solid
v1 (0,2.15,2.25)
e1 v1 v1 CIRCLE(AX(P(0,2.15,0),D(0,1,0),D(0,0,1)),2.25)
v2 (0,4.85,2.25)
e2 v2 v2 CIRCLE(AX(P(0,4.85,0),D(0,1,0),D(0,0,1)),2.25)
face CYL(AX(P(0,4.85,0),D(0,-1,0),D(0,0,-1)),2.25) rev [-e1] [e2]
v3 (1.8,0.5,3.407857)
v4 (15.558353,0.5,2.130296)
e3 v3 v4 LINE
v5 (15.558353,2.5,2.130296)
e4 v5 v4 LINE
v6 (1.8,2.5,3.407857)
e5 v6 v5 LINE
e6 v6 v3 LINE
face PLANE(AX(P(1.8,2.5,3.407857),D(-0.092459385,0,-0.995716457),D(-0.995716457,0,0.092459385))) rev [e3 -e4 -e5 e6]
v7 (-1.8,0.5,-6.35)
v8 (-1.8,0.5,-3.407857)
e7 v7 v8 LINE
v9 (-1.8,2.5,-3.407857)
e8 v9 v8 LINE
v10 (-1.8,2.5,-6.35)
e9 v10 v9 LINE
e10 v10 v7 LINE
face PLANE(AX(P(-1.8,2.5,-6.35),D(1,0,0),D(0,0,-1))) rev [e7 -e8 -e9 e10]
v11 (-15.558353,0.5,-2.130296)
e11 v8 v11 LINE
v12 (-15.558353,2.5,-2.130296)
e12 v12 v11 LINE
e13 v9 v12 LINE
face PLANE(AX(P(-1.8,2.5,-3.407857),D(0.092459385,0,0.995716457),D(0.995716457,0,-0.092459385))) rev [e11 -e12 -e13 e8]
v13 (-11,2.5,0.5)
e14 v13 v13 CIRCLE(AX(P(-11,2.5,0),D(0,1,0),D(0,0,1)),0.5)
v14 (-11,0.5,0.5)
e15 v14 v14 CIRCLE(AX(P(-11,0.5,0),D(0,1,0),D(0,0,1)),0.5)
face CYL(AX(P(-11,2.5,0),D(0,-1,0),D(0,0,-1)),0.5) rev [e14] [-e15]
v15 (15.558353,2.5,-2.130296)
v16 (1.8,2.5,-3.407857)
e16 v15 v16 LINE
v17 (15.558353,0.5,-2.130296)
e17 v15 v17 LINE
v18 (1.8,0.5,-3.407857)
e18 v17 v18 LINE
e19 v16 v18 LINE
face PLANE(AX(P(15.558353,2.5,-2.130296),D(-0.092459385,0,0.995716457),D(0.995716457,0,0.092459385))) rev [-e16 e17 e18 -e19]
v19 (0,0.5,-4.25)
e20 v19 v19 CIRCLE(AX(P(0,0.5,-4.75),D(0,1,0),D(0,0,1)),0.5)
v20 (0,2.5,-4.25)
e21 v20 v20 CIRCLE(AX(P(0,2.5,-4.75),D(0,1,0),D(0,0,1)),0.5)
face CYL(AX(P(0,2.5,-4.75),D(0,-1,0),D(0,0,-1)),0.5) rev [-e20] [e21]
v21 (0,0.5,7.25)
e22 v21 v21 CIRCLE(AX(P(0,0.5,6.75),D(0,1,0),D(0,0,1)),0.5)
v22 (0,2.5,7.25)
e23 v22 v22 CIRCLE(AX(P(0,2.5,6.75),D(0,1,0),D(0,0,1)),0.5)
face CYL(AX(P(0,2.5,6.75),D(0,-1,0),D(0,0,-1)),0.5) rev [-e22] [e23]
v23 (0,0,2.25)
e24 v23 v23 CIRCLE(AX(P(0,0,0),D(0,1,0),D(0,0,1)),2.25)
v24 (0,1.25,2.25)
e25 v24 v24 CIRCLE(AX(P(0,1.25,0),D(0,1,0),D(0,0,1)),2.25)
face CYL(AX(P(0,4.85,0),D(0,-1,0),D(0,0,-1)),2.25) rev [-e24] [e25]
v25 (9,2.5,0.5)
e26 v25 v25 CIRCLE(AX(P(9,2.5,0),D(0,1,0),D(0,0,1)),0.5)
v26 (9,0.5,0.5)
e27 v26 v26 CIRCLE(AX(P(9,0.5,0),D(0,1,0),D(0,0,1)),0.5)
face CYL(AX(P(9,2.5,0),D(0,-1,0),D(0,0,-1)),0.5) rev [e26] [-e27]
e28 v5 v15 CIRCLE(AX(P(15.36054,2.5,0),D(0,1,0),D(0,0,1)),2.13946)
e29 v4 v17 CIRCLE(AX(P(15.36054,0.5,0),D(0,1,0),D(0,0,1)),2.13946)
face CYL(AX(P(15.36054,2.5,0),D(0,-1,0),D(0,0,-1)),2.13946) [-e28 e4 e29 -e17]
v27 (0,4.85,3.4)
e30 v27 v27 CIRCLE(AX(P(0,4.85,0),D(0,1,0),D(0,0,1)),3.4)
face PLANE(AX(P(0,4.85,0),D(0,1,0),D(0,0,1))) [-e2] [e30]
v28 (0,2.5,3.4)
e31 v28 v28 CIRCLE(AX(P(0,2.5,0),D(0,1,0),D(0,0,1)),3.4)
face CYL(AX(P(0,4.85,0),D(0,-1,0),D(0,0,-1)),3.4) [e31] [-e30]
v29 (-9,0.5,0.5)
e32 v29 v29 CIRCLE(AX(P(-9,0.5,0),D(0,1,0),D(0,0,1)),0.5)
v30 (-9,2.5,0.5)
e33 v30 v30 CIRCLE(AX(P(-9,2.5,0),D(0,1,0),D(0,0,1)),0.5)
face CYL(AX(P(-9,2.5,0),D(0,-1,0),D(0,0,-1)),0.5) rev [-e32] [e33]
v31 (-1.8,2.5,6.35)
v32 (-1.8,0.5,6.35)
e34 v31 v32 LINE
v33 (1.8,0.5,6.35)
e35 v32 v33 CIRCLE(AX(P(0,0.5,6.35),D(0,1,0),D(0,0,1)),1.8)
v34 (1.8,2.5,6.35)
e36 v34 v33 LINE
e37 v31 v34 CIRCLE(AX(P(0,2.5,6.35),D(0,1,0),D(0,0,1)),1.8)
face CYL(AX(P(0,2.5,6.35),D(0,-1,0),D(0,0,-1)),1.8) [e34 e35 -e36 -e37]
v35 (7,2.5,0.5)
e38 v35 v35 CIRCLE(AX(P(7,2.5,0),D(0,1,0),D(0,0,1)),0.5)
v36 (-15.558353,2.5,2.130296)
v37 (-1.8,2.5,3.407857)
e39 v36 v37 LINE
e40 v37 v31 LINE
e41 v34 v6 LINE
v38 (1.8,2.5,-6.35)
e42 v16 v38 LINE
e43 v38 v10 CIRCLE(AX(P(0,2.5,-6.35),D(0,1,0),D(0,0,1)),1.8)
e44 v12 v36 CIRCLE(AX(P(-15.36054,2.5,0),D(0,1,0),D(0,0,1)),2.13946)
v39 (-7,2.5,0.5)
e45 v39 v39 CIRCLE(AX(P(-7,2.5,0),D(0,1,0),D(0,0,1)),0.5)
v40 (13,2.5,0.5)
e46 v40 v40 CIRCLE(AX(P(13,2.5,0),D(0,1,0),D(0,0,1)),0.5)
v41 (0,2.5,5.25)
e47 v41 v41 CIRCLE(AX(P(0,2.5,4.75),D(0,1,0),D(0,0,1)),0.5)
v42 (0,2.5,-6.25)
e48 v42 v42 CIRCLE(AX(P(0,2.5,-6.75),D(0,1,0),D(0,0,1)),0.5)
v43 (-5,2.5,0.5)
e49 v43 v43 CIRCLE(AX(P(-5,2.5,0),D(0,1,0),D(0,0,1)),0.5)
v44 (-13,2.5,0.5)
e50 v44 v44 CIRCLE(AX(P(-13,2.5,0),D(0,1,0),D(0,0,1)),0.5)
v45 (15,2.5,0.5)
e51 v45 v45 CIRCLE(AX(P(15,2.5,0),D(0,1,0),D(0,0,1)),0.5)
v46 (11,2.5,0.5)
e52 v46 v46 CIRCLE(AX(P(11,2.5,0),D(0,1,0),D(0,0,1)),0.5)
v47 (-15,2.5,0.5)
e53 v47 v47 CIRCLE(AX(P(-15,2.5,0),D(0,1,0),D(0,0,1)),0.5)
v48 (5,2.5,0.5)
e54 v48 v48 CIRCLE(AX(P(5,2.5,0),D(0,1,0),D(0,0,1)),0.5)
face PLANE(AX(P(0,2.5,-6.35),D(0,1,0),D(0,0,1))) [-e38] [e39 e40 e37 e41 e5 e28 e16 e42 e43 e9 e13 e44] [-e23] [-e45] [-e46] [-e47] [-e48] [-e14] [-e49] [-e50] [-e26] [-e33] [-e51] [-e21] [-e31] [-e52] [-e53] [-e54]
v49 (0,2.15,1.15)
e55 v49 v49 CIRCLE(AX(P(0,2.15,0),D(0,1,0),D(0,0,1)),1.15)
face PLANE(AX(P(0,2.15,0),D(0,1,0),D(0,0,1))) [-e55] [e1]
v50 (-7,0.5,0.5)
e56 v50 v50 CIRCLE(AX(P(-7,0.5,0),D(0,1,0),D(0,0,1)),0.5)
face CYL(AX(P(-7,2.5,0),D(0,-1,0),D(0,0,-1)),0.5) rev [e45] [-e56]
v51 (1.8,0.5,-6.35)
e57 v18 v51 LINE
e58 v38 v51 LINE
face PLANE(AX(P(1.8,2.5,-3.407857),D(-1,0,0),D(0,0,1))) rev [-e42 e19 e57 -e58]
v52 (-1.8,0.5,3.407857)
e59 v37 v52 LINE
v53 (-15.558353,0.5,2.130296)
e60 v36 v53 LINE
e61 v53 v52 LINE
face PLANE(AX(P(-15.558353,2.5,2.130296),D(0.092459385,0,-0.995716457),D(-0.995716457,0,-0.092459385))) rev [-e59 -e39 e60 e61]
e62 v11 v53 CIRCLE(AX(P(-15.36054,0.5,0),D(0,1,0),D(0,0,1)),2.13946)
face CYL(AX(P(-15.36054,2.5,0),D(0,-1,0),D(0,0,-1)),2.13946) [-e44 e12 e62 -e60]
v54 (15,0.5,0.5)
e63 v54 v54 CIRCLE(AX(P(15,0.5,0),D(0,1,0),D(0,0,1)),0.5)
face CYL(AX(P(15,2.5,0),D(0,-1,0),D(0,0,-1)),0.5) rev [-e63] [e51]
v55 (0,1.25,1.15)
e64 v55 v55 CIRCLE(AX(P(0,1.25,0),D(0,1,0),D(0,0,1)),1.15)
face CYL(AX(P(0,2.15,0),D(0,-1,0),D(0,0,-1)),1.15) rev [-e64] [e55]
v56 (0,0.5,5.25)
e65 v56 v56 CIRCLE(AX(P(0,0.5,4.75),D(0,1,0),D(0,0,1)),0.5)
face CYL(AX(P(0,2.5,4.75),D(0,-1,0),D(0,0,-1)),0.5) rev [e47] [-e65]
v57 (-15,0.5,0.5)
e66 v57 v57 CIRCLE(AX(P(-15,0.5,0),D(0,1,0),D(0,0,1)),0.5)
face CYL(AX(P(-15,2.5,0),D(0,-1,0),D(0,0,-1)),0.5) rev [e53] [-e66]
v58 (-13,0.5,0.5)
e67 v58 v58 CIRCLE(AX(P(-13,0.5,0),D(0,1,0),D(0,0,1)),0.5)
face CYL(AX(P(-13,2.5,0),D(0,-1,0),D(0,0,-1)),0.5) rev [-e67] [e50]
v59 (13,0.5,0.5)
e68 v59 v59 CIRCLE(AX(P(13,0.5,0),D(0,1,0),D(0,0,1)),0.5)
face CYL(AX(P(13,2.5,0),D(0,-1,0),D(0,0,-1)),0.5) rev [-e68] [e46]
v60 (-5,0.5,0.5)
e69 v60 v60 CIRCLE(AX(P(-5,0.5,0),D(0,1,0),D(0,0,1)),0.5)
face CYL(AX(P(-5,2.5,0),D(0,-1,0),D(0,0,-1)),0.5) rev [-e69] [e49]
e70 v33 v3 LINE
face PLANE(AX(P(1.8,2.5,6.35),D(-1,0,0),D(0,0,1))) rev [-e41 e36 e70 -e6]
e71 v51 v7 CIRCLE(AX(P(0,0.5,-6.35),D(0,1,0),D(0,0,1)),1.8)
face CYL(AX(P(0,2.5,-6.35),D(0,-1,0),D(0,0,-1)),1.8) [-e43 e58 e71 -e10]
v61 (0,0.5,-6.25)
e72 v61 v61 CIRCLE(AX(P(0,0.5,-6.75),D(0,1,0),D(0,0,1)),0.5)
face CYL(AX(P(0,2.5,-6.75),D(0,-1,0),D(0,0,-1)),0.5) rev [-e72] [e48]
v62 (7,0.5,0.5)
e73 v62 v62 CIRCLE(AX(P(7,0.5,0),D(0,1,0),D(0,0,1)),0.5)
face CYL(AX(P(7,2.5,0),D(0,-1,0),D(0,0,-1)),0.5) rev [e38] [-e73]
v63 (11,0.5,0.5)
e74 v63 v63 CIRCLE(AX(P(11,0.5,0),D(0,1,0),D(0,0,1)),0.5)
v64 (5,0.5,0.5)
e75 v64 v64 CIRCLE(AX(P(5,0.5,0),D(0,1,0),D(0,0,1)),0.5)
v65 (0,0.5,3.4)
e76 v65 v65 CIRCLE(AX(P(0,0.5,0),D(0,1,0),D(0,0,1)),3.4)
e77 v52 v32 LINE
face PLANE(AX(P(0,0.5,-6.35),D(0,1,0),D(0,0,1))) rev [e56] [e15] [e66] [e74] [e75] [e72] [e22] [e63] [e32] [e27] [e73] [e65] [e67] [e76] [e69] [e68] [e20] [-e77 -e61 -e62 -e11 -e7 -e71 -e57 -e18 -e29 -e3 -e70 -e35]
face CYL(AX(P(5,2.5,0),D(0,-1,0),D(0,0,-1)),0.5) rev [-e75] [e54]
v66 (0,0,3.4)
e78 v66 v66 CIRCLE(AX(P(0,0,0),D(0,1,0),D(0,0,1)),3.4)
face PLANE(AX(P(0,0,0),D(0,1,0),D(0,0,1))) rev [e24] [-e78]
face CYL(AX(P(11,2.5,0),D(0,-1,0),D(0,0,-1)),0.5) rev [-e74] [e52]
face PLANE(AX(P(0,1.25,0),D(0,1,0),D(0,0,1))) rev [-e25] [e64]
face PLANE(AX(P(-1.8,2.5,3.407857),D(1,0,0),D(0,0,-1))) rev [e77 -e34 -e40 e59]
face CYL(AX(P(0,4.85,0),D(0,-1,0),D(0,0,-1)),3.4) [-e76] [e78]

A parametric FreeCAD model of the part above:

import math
import FreeCAD as App
import Part
import Sketcher

doc = App.newDocument("Part")
body = doc.addObject("PartDesign::Body", "Body")

# Sketch on XZ plane
sketch1 = doc.addObject("Sketcher::SketchObject", "Sketch")
body.addObject(sketch1)
sketch1.AttachmentSupport = (doc.XZ_Plane, [""])
sketch1.MapMode = "FlatFace"
sketch1.addGeometry([
    Part.Circle(App.Vector(0, 0, 0), App.Vector(0, 0, 1), 3.4),
    Part.Circle(App.Vector(0, 0, 0), App.Vector(0, 0, 1), 2.2),
], False)
sketch1.addConstraint([
    Sketcher.Constraint("Coincident", 0, 3, -1, 1),
    Sketcher.Constraint("Coincident", 1, 3, -1, 1),
    Sketcher.Constraint("Diameter", 0, 6.8),
    Sketcher.Constraint("Diameter", 1, 4.5),
])
pad1 = doc.addObject("PartDesign::Pad", "Pad")
body.addObject(pad1)
pad1.Profile = sketch1
pad1.Length = 4.85
pad1.Reversed = True

# Sketch on XZ plane
sketch2 = doc.addObject("Sketcher::SketchObject", "Sketch001")
body.addObject(sketch2)
sketch2.AttachmentSupport = (doc.XZ_Plane, [""])
sketch2.MapMode = "FlatFace"
sketch2.AttachmentOffset = App.Placement(App.Vector(0, 0, -0.5), App.Rotation())
sketch2.addGeometry([
    Part.LineSegment(App.Vector(1.8, -3.4, 0), App.Vector(1.8, -6.3, 0)),  # 0
    Part.ArcOfCircle(Part.Circle(App.Vector(0, -6.3, 0), App.Vector(0, 0, 1), 1.8), math.radians(180), math.radians(360)),  # 1
    Part.LineSegment(App.Vector(-1.8, -6.3, 0), App.Vector(-1.8, -3.4, 0)),  # 2
    Part.LineSegment(App.Vector(-1.8, -3.4, 0), App.Vector(-15.6, -2.1, 0)),  # 3
    Part.ArcOfCircle(Part.Circle(App.Vector(-15.4, 0, 0), App.Vector(0, 0, 1), 2.1), math.radians(95), math.radians(265)),  # 4
    Part.LineSegment(App.Vector(-15.6, 2.1, 0), App.Vector(-1.8, 3.4, 0)),  # 5
    Part.LineSegment(App.Vector(-1.8, 3.4, 0), App.Vector(-1.8, 6.3, 0)),  # 6
    Part.ArcOfCircle(Part.Circle(App.Vector(0, 6.3, 0), App.Vector(0, 0, 1), 1.8), math.radians(0), math.radians(180)),  # 7
    Part.LineSegment(App.Vector(1.8, 6.3, 0), App.Vector(1.8, 3.4, 0)),  # 8
    Part.LineSegment(App.Vector(1.8, 3.4, 0), App.Vector(15.6, 2.1, 0)),  # 9
    Part.ArcOfCircle(Part.Circle(App.Vector(15.4, 0, 0), App.Vector(0, 0, 1), 2.1), math.radians(-85), math.radians(85)),  # 10
    Part.LineSegment(App.Vector(15.6, -2.1, 0), App.Vector(1.8, -3.4, 0)),  # 11
    Part.Circle(App.Vector(0, 6.8, 0), App.Vector(0, 0, 1), 0.5),  # 12
    Part.Circle(App.Vector(0, 4.8, 0), App.Vector(0, 0, 1), 0.5),  # 13
    Part.Circle(App.Vector(-15, 0, 0), App.Vector(0, 0, 1), 0.5),  # 14
    Part.Circle(App.Vector(-13, 0, 0), App.Vector(0, 0, 1), 0.5),  # 15
    Part.Circle(App.Vector(-11, 0, 0), App.Vector(0, 0, 1), 0.5),  # 16
    Part.Circle(App.Vector(-9, 0, 0), App.Vector(0, 0, 1), 0.5),  # 17
    Part.Circle(App.Vector(-7, 0, 0), App.Vector(0, 0, 1), 0.5),  # 18
    Part.Circle(App.Vector(-5, 0, 0), App.Vector(0, 0, 1), 0.5),  # 19
    Part.Circle(App.Vector(0, 0, 0), App.Vector(0, 0, 1), 2.2),  # 20
    Part.Circle(App.Vector(5, 0, 0), App.Vector(0, 0, 1), 0.5),  # 21
    Part.Circle(App.Vector(7, 0, 0), App.Vector(0, 0, 1), 0.5),  # 22
    Part.Circle(App.Vector(9, 0, 0), App.Vector(0, 0, 1), 0.5),  # 23
    Part.Circle(App.Vector(11, 0, 0), App.Vector(0, 0, 1), 0.5),  # 24
    Part.Circle(App.Vector(13, 0, 0), App.Vector(0, 0, 1), 0.5),  # 25
    Part.Circle(App.Vector(15, 0, 0), App.Vector(0, 0, 1), 0.5),  # 26
    Part.Circle(App.Vector(0, -4.8, 0), App.Vector(0, 0, 1), 0.5),  # 27
    Part.Circle(App.Vector(0, -6.8, 0), App.Vector(0, 0, 1), 0.5),  # 28
], False)
sketch2.addConstraint([
    Sketcher.Constraint("Tangent", 0, 2, 1, 2),
    Sketcher.Constraint("Tangent", 1, 1, 2, 1),
    Sketcher.Constraint("Coincident", 2, 2, 3, 1),
    Sketcher.Constraint("Tangent", 3, 2, 4, 2),
    Sketcher.Constraint("Tangent", 4, 1, 5, 1),
    Sketcher.Constraint("Coincident", 5, 2, 6, 1),
    Sketcher.Constraint("Tangent", 6, 2, 7, 2),
    Sketcher.Constraint("Tangent", 7, 1, 8, 1),
    Sketcher.Constraint("Coincident", 8, 2, 9, 1),
    Sketcher.Constraint("Tangent", 9, 2, 10, 2),
    Sketcher.Constraint("Tangent", 10, 1, 11, 1),
    Sketcher.Constraint("Coincident", 11, 2, 0, 1),
    Sketcher.Constraint("Vertical", 0),
    Sketcher.Constraint("Vertical", 2),
    Sketcher.Constraint("Vertical", 6),
    Sketcher.Constraint("Vertical", 8),
    Sketcher.Constraint("Coincident", 20, 3, -1, 1),
    Sketcher.Constraint("Equal", 1, 7),
    Sketcher.Constraint("Equal", 4, 10),
    Sketcher.Constraint("Equal", 12, 13),
    Sketcher.Constraint("Equal", 13, 14),
    Sketcher.Constraint("Equal", 14, 15),
    Sketcher.Constraint("Equal", 15, 16),
    Sketcher.Constraint("Equal", 16, 17),
    Sketcher.Constraint("Equal", 17, 18),
    Sketcher.Constraint("Equal", 18, 19),
    Sketcher.Constraint("Equal", 19, 21),
    Sketcher.Constraint("Equal", 21, 22),
    Sketcher.Constraint("Equal", 22, 23),
    Sketcher.Constraint("Equal", 23, 24),
    Sketcher.Constraint("Equal", 24, 25),
    Sketcher.Constraint("Equal", 25, 26),
    Sketcher.Constraint("Equal", 26, 27),
    Sketcher.Constraint("Equal", 27, 28),
    Sketcher.Constraint("Symmetric", 1, 3, 7, 3, -1, 1),
    Sketcher.Constraint("Symmetric", 4, 3, 10, 3, -1, 1),
    Sketcher.Constraint("Symmetric", 19, 3, 21, 3, -1, 1),
    Sketcher.Constraint("Symmetric", 18, 3, 22, 3, -1, 1),
    Sketcher.Constraint("Symmetric", 17, 3, 23, 3, -1, 1),
    Sketcher.Constraint("Symmetric", 16, 3, 24, 3, -1, 1),
    Sketcher.Constraint("Symmetric", 15, 3, 25, 3, -1, 1),
    Sketcher.Constraint("Symmetric", 14, 3, 26, 3, -1, 1),
    Sketcher.Constraint("Symmetric", 13, 3, 27, 3, -1, 1),
    Sketcher.Constraint("Symmetric", 12, 3, 28, 3, -1, 1),
    Sketcher.Constraint("Symmetric", 5, 2, 8, 2, -2),
    Sketcher.Constraint("Symmetric", 3, 2, 10, 1, -2),
    Sketcher.Constraint("PointOnObject", 12, 3, -2),
    Sketcher.Constraint("PointOnObject", 13, 3, -2),
    Sketcher.Constraint("PointOnObject", 14, 3, -1),
    Sketcher.Constraint("PointOnObject", 15, 3, -1),
    Sketcher.Constraint("PointOnObject", 16, 3, -1),
    Sketcher.Constraint("PointOnObject", 17, 3, -1),
    Sketcher.Constraint("PointOnObject", 18, 3, -1),
    Sketcher.Constraint("PointOnObject", 19, 3, -1),
    Sketcher.Constraint("Parallel", 3, 9),
    Sketcher.Constraint("Diameter", 12, 1.0),
    Sketcher.Constraint("Diameter", 20, 4.5),
    Sketcher.Constraint("Radius", 1, 1.8),
    Sketcher.Constraint("DistanceX", 14, 3, -1, 1, 15.0),
    Sketcher.Constraint("DistanceX", 15, 3, -1, 1, 13.0),
    Sketcher.Constraint("DistanceX", 16, 3, -1, 1, 11.0),
    Sketcher.Constraint("DistanceX", 17, 3, -1, 1, 9.0),
    Sketcher.Constraint("DistanceX", 18, 3, -1, 1, 7.0),
    Sketcher.Constraint("DistanceX", 19, 3, -1, 1, 5.0),
    Sketcher.Constraint("DistanceY", 13, 3, 12, 3, 2.0),
    Sketcher.Constraint("DistanceY", 1, 3, 7, 3, 12.7),
    Sketcher.Constraint("DistanceY", 7, 3, 12, 3, 0.4),
    Sketcher.Constraint("Radius", 4, 2.13946),
    Sketcher.Constraint("Distance", 3, 13.817541),
    Sketcher.Constraint("DistanceY", 0, 2, 0, 1, 2.942143),
])
pad2 = doc.addObject("PartDesign::Pad", "Pad001")
body.addObject(pad2)
pad2.Profile = sketch2
pad2.Length = 2
pad2.Reversed = True

# Sketch on XZ plane
sketch3 = doc.addObject("Sketcher::SketchObject", "Sketch002")
body.addObject(sketch3)
sketch3.AttachmentSupport = (doc.XZ_Plane, [""])
sketch3.MapMode = "FlatFace"
sketch3.AttachmentOffset = App.Placement(App.Vector(0, 0, -1.25), App.Rotation())
sketch3.addGeometry([
    Part.Circle(App.Vector(0, 0, 0), App.Vector(0, 0, 1), 2.2),
    Part.Circle(App.Vector(0, 0, 0), App.Vector(0, 0, 1), 1.1),
], False)
sketch3.addConstraint([
    Sketcher.Constraint("Coincident", 0, 3, -1, 1),
    Sketcher.Constraint("Coincident", 1, 3, -1, 1),
    Sketcher.Constraint("Diameter", 0, 4.5),
    Sketcher.Constraint("Diameter", 1, 2.3),
])
pad3 = doc.addObject("PartDesign::Pad", "Pad002")
body.addObject(pad3)
pad3.Profile = sketch3
pad3.Length = 0.9
pad3.Reversed = True

doc.recompute()
